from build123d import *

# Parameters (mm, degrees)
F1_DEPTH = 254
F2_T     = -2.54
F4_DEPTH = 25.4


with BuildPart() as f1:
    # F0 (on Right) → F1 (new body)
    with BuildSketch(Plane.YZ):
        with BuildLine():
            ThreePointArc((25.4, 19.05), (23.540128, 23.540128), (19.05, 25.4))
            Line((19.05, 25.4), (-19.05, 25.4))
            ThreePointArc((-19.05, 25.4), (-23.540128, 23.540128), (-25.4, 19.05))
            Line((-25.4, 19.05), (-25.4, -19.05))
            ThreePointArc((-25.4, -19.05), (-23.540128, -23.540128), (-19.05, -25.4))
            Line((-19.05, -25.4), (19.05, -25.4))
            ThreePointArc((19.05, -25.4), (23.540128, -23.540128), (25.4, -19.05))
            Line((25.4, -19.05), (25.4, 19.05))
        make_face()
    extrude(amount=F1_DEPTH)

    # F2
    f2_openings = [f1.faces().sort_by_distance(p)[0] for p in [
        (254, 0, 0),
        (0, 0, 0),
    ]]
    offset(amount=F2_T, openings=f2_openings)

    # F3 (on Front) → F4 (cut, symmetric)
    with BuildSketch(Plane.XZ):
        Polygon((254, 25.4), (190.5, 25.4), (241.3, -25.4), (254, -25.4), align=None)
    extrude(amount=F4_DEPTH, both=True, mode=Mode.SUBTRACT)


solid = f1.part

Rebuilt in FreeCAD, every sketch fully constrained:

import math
import FreeCAD as App
import Part
import Sketcher
from FreeCAD import Vector
Q = App.Units.Quantity


def faces_at(feature, points):
    """Names of the faces that lie closest to the given points."""
    faces = feature.Shape.Faces
    near = lambda p: min(range(len(faces)), key=lambda i: faces[i].distToShape(Part.Vertex(*p))[0])
    return sorted({f"Face{near(p) + 1}" for p in points})


def add_polygon(sketch, points):
    """Adds a closed chain of lines whose ends are joined by coincident constraints."""
    first, n = sketch.GeometryCount, len(points)
    for a, b in zip(points, points[1:] + points[:1]):
        sketch.addGeometry(Part.LineSegment(App.Vector(*a, 0), App.Vector(*b, 0)), False)
    for i in range(n):
        sketch.addConstraint(Sketcher.Constraint("Coincident", first + i, 2, first + (i + 1) % n, 1))

doc = App.newDocument("Part")
body = doc.addObject("PartDesign::Body", "Body")

# Sketch on YZ plane
sketch1 = body.newObject("Sketcher::SketchObject", "Sketch")
sketch1.AttachmentSupport = (doc.getObject("YZ_Plane"), [""])
sketch1.MapMode = "FlatFace"
sketch1.addGeometry(Part.ArcOfCircle(Part.Circle(Vector(19.05, 19.05, 0), Vector(0, 0, 1), 6.35), math.radians(0.000002), math.radians(89.999998)), False)
sketch1.addGeometry(Part.LineSegment(Vector(19.05, 25.4, 0), Vector(-19.05, 25.4, 0)), False)
sketch1.addGeometry(Part.ArcOfCircle(Part.Circle(Vector(-19.05, 19.05, 0), Vector(0, 0, 1), 6.35), math.radians(90.000002), math.radians(179.999998)), False)
sketch1.addGeometry(Part.LineSegment(Vector(-25.4, 19.05, 0), Vector(-25.4, -19.05, 0)), False)
sketch1.addGeometry(Part.ArcOfCircle(Part.Circle(Vector(-19.05, -19.05, 0), Vector(0, 0, 1), 6.35), math.radians(-179.999998), math.radians(-90.000002)), False)
sketch1.addGeometry(Part.LineSegment(Vector(-19.05, -25.4, 0), Vector(19.05, -25.4, 0)), False)
sketch1.addGeometry(Part.ArcOfCircle(Part.Circle(Vector(19.05, -19.05, 0), Vector(0, 0, 1), 6.35), math.radians(-89.999998), math.radians(-0.000002)), False)
sketch1.addGeometry(Part.LineSegment(Vector(25.4, -19.05, 0), Vector(25.4, 19.05, 0)), False)
sketch1.addConstraint(Sketcher.Constraint("Tangent", 0, 2, 1, 1))
sketch1.addConstraint(Sketcher.Constraint("Tangent", 1, 2, 2, 1))
sketch1.addConstraint(Sketcher.Constraint("Tangent", 2, 2, 3, 1))
sketch1.addConstraint(Sketcher.Constraint("Tangent", 3, 2, 4, 1))
sketch1.addConstraint(Sketcher.Constraint("Tangent", 4, 2, 5, 1))
sketch1.addConstraint(Sketcher.Constraint("Tangent", 5, 2, 6, 1))
sketch1.addConstraint(Sketcher.Constraint("Tangent", 6, 2, 7, 1))
sketch1.addConstraint(Sketcher.Constraint("Tangent", 7, 2, 0, 1))
sketch1.addConstraint(Sketcher.Constraint("Horizontal", 1))
sketch1.addConstraint(Sketcher.Constraint("Vertical", 3))
sketch1.addConstraint(Sketcher.Constraint("Horizontal", 5))
sketch1.addConstraint(Sketcher.Constraint("Vertical", 7))
sketch1.addConstraint(Sketcher.Constraint("Equal", 0, 2))
sketch1.addConstraint(Sketcher.Constraint("Equal", 2, 4))
sketch1.addConstraint(Sketcher.Constraint("Equal", 4, 6))
sketch1.addConstraint(Sketcher.Constraint("Symmetric", 0, 3, 4, 3, -1, 1))
sketch1.addConstraint(Sketcher.Constraint("Equal", 5, 3))
sketch1.addConstraint(Sketcher.Constraint("Radius", 0, Q("0.25 in")))
sketch1.addConstraint(Sketcher.Constraint("DistanceX", 1, 2, 1, 1, Q("1.5 in")))
pad1 = body.newObject("PartDesign::Pad", "Pad")
pad1.Profile = sketch1
pad1.Length = Q("10 in")
doc.recompute()

thickness = body.newObject("PartDesign::Thickness", "Thickness")
thickness.Base = (pad1, faces_at(pad1, [(254, 0, 0), (0, 0, 0)]))
thickness.Value = Q("0.1 in")
thickness.Reversed = True
thickness.Join = "Arc"

# Sketch on XZ plane
sketch2 = body.newObject("Sketcher::SketchObject", "Sketch001")
sketch2.AttachmentSupport = (doc.getObject("XZ_Plane"), [""])
sketch2.MapMode = "FlatFace"
add_polygon(sketch2, [(254, 25.4), (190.5, 25.4), (241.3, -25.4), (254, -25.4)])  # lines 0-3
sketch2.addConstraint(Sketcher.Constraint("Horizontal", 0))
sketch2.addConstraint(Sketcher.Constraint("Horizontal", 2))
sketch2.addConstraint(Sketcher.Constraint("Vertical", 3))
sketch2.addConstraint(Sketcher.Constraint("DistanceY", 3, 1, 3, 2, Q("2 in")))
sketch2.addConstraint(Sketcher.Constraint("DistanceX", 0, 2, 0, 1, Q("2.5 in")))
sketch2.addConstraint(Sketcher.Constraint("DistanceX", 2, 1, 2, 2, Q("0.5 in")))
sketch2.addConstraint(Sketcher.Constraint("DistanceY", -1, 1, 0, 2, Q("1 in")))
sketch2.addConstraint(Sketcher.Constraint("DistanceX", -1, 1, 2, 2, Q("10 in")))
pocket1 = body.newObject("PartDesign::Pocket", "Pocket")
pocket1.Profile = sketch2
pocket1.Length = Q("2 in")
pocket1.Midplane = True

doc.recompute()
